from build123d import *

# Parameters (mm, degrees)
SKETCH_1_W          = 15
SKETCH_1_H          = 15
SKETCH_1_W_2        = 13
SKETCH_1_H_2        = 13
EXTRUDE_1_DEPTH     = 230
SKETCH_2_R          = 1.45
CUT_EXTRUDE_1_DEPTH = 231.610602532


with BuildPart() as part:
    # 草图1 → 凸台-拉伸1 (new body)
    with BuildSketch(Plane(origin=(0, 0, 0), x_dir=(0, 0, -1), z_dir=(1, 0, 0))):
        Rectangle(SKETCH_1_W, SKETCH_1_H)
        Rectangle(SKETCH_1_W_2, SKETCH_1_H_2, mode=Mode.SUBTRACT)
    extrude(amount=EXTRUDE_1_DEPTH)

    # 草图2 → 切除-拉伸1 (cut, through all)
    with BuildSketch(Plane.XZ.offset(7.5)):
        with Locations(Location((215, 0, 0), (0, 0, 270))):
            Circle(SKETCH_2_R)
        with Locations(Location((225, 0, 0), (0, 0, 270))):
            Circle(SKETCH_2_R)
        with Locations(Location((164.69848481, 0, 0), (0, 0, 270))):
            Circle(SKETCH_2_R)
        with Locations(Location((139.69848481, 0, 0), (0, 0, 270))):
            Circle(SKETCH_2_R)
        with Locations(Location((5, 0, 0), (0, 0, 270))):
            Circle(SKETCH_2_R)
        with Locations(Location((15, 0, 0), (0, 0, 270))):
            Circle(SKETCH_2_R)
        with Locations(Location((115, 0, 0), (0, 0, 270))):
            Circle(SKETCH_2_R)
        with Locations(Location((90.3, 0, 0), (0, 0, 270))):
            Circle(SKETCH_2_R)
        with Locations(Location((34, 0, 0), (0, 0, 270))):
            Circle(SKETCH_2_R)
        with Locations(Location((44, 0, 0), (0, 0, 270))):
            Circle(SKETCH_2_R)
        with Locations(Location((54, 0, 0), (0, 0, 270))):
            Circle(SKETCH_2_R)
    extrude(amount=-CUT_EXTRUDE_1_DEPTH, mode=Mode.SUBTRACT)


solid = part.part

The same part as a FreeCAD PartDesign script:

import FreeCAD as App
import Part
import Sketcher
from FreeCAD import Vector
Q = App.Units.Quantity


def add_polygon(sketch, points):
    """Adds a closed chain of lines whose ends are joined by coincident constraints."""
    first, n = sketch.GeometryCount, len(points)
    for a, b in zip(points, points[1:] + points[:1]):
        sketch.addGeometry(Part.LineSegment(App.Vector(*a, 0), App.Vector(*b, 0)), False)
    for i in range(n):
        sketch.addConstraint(Sketcher.Constraint("Coincident", first + i, 2, first + (i + 1) % n, 1))

doc = App.newDocument("Part")
body = doc.addObject("PartDesign::Body", "Body")

sketch1 = doc.addObject("Sketcher::SketchObject", "Sketch")
body.addObject(sketch1)
sketch1.AttachmentSupport = (doc.YZ_Plane, [""])
sketch1.MapMode = "FlatFace"
add_polygon(sketch1, [(7.5, 7.5), (-7.5, 7.5), (-7.5, -7.5), (7.5, -7.5)])
add_polygon(sketch1, [(-6.5, -6.5), (-6.5, 6.5), (6.5, 6.5), (6.5, -6.5)])
sketch1.addConstraint([
    Sketcher.Constraint("Horizontal", 0),
    Sketcher.Constraint("Vertical", 1),
    Sketcher.Constraint("Horizontal", 2),
    Sketcher.Constraint("Vertical", 3),
    Sketcher.Constraint("Vertical", 4),
    Sketcher.Constraint("Horizontal", 5),
    Sketcher.Constraint("Vertical", 6),
    Sketcher.Constraint("Horizontal", 7),
    Sketcher.Constraint("Symmetric", 0, 2, 2, 2, -1, 1),
    Sketcher.Constraint("Symmetric", 4, 2, 6, 2, -1, 1),
    Sketcher.Constraint("Equal", 2, 1),
    Sketcher.Constraint("Equal", 7, 4),
    Sketcher.Constraint("DistanceX", 0, 2, 0, 1, Q("15 mm")),
    Sketcher.Constraint("DistanceX", 5, 1, 5, 2, Q("13 mm")),
])
pad1 = doc.addObject("PartDesign::Pad", "Pad")
body.addObject(pad1)
pad1.Profile = sketch1
pad1.Length = 230

sketch2 = doc.addObject("Sketcher::SketchObject", "Sketch001")
body.addObject(sketch2)
sketch2.AttachmentSupport = (doc.XZ_Plane, [""])
sketch2.MapMode = "FlatFace"
sketch2.AttachmentOffset = App.Placement(Vector(0, 0, 7.5), App.Rotation())
sketch2.addGeometry([
    Part.Circle(Vector(215, 0, 0), Vector(0, 0, 1), 1.45),
    Part.Circle(Vector(225, 0, 0), Vector(0, 0, 1), 1.45),
    Part.Circle(Vector(164.698485, 0, 0), Vector(0, 0, 1), 1.45),
    Part.Circle(Vector(139.698485, 0, 0), Vector(0, 0, 1), 1.45),
    Part.Circle(Vector(5, 0, 0), Vector(0, 0, 1), 1.45),
    Part.Circle(Vector(15, 0, 0), Vector(0, 0, 1), 1.45),
    Part.Circle(Vector(115, 0, 0), Vector(0, 0, 1), 1.45),
    Part.Circle(Vector(90.3, 0, 0), Vector(0, 0, 1), 1.45),
    Part.Circle(Vector(34, 0, 0), Vector(0, 0, 1), 1.45),
    Part.Circle(Vector(44, 0, 0), Vector(0, 0, 1), 1.45),
    Part.Circle(Vector(54, 0, 0), Vector(0, 0, 1), 1.45),
], False)
sketch2.addConstraint([
    Sketcher.Constraint("Equal", 0, 1),
    Sketcher.Constraint("Equal", 1, 2),
    Sketcher.Constraint("Equal", 2, 3),
    Sketcher.Constraint("Equal", 3, 4),
    Sketcher.Constraint("Equal", 4, 5),
    Sketcher.Constraint("Equal", 5, 6),
    Sketcher.Constraint("Equal", 6, 7),
    Sketcher.Constraint("Equal", 7, 8),
    Sketcher.Constraint("Equal", 8, 9),
    Sketcher.Constraint("Equal", 9, 10),
    Sketcher.Constraint("PointOnObject", 0, 3, -1),
    Sketcher.Constraint("PointOnObject", 1, 3, -1),
    Sketcher.Constraint("PointOnObject", 2, 3, -1),
    Sketcher.Constraint("PointOnObject", 3, 3, -1),
    Sketcher.Constraint("PointOnObject", 4, 3, -1),
    Sketcher.Constraint("PointOnObject", 5, 3, -1),
    Sketcher.Constraint("PointOnObject", 6, 3, -1),
    Sketcher.Constraint("PointOnObject", 7, 3, -1),
    Sketcher.Constraint("PointOnObject", 8, 3, -1),
    Sketcher.Constraint("PointOnObject", 9, 3, -1),
    Sketcher.Constraint("PointOnObject", 10, 3, -1),
    Sketcher.Constraint("Diameter", 0, Q("2.9 mm")),
    Sketcher.Constraint("DistanceX", -1, 1, 0, 3, Q("215 mm")),
    Sketcher.Constraint("DistanceX", -1, 1, 1, 3, Q("225 mm")),
    Sketcher.Constraint("DistanceX", -1, 1, 4, 3, Q("5 mm")),
    Sketcher.Constraint("DistanceX", -1, 1, 5, 3, Q("15 mm")),
    Sketcher.Constraint("DistanceX", -1, 1, 6, 3, Q("115 mm")),
    Sketcher.Constraint("DistanceX", -1, 1, 8, 3, Q("34 mm")),
    Sketcher.Constraint("DistanceX", -1, 1, 9, 3, Q("44 mm")),
    Sketcher.Constraint("DistanceX", -1, 1, 10, 3, Q("54 mm")),
    Sketcher.Constraint("DistanceX", 3, 3, 2, 3, Q("25 mm")),
    Sketcher.Constraint("DistanceX", -1, 1, 7, 3, Q("90.3 mm")),
    Sketcher.Constraint("DistanceX", -1, 1, 2, 3, Q("164.698485 mm")),
])
pocket1 = doc.addObject("PartDesign::Pocket", "Pocket")
body.addObject(pocket1)
pocket1.Profile = sketch2
pocket1.Type = "ThroughAll"

doc.recompute()
